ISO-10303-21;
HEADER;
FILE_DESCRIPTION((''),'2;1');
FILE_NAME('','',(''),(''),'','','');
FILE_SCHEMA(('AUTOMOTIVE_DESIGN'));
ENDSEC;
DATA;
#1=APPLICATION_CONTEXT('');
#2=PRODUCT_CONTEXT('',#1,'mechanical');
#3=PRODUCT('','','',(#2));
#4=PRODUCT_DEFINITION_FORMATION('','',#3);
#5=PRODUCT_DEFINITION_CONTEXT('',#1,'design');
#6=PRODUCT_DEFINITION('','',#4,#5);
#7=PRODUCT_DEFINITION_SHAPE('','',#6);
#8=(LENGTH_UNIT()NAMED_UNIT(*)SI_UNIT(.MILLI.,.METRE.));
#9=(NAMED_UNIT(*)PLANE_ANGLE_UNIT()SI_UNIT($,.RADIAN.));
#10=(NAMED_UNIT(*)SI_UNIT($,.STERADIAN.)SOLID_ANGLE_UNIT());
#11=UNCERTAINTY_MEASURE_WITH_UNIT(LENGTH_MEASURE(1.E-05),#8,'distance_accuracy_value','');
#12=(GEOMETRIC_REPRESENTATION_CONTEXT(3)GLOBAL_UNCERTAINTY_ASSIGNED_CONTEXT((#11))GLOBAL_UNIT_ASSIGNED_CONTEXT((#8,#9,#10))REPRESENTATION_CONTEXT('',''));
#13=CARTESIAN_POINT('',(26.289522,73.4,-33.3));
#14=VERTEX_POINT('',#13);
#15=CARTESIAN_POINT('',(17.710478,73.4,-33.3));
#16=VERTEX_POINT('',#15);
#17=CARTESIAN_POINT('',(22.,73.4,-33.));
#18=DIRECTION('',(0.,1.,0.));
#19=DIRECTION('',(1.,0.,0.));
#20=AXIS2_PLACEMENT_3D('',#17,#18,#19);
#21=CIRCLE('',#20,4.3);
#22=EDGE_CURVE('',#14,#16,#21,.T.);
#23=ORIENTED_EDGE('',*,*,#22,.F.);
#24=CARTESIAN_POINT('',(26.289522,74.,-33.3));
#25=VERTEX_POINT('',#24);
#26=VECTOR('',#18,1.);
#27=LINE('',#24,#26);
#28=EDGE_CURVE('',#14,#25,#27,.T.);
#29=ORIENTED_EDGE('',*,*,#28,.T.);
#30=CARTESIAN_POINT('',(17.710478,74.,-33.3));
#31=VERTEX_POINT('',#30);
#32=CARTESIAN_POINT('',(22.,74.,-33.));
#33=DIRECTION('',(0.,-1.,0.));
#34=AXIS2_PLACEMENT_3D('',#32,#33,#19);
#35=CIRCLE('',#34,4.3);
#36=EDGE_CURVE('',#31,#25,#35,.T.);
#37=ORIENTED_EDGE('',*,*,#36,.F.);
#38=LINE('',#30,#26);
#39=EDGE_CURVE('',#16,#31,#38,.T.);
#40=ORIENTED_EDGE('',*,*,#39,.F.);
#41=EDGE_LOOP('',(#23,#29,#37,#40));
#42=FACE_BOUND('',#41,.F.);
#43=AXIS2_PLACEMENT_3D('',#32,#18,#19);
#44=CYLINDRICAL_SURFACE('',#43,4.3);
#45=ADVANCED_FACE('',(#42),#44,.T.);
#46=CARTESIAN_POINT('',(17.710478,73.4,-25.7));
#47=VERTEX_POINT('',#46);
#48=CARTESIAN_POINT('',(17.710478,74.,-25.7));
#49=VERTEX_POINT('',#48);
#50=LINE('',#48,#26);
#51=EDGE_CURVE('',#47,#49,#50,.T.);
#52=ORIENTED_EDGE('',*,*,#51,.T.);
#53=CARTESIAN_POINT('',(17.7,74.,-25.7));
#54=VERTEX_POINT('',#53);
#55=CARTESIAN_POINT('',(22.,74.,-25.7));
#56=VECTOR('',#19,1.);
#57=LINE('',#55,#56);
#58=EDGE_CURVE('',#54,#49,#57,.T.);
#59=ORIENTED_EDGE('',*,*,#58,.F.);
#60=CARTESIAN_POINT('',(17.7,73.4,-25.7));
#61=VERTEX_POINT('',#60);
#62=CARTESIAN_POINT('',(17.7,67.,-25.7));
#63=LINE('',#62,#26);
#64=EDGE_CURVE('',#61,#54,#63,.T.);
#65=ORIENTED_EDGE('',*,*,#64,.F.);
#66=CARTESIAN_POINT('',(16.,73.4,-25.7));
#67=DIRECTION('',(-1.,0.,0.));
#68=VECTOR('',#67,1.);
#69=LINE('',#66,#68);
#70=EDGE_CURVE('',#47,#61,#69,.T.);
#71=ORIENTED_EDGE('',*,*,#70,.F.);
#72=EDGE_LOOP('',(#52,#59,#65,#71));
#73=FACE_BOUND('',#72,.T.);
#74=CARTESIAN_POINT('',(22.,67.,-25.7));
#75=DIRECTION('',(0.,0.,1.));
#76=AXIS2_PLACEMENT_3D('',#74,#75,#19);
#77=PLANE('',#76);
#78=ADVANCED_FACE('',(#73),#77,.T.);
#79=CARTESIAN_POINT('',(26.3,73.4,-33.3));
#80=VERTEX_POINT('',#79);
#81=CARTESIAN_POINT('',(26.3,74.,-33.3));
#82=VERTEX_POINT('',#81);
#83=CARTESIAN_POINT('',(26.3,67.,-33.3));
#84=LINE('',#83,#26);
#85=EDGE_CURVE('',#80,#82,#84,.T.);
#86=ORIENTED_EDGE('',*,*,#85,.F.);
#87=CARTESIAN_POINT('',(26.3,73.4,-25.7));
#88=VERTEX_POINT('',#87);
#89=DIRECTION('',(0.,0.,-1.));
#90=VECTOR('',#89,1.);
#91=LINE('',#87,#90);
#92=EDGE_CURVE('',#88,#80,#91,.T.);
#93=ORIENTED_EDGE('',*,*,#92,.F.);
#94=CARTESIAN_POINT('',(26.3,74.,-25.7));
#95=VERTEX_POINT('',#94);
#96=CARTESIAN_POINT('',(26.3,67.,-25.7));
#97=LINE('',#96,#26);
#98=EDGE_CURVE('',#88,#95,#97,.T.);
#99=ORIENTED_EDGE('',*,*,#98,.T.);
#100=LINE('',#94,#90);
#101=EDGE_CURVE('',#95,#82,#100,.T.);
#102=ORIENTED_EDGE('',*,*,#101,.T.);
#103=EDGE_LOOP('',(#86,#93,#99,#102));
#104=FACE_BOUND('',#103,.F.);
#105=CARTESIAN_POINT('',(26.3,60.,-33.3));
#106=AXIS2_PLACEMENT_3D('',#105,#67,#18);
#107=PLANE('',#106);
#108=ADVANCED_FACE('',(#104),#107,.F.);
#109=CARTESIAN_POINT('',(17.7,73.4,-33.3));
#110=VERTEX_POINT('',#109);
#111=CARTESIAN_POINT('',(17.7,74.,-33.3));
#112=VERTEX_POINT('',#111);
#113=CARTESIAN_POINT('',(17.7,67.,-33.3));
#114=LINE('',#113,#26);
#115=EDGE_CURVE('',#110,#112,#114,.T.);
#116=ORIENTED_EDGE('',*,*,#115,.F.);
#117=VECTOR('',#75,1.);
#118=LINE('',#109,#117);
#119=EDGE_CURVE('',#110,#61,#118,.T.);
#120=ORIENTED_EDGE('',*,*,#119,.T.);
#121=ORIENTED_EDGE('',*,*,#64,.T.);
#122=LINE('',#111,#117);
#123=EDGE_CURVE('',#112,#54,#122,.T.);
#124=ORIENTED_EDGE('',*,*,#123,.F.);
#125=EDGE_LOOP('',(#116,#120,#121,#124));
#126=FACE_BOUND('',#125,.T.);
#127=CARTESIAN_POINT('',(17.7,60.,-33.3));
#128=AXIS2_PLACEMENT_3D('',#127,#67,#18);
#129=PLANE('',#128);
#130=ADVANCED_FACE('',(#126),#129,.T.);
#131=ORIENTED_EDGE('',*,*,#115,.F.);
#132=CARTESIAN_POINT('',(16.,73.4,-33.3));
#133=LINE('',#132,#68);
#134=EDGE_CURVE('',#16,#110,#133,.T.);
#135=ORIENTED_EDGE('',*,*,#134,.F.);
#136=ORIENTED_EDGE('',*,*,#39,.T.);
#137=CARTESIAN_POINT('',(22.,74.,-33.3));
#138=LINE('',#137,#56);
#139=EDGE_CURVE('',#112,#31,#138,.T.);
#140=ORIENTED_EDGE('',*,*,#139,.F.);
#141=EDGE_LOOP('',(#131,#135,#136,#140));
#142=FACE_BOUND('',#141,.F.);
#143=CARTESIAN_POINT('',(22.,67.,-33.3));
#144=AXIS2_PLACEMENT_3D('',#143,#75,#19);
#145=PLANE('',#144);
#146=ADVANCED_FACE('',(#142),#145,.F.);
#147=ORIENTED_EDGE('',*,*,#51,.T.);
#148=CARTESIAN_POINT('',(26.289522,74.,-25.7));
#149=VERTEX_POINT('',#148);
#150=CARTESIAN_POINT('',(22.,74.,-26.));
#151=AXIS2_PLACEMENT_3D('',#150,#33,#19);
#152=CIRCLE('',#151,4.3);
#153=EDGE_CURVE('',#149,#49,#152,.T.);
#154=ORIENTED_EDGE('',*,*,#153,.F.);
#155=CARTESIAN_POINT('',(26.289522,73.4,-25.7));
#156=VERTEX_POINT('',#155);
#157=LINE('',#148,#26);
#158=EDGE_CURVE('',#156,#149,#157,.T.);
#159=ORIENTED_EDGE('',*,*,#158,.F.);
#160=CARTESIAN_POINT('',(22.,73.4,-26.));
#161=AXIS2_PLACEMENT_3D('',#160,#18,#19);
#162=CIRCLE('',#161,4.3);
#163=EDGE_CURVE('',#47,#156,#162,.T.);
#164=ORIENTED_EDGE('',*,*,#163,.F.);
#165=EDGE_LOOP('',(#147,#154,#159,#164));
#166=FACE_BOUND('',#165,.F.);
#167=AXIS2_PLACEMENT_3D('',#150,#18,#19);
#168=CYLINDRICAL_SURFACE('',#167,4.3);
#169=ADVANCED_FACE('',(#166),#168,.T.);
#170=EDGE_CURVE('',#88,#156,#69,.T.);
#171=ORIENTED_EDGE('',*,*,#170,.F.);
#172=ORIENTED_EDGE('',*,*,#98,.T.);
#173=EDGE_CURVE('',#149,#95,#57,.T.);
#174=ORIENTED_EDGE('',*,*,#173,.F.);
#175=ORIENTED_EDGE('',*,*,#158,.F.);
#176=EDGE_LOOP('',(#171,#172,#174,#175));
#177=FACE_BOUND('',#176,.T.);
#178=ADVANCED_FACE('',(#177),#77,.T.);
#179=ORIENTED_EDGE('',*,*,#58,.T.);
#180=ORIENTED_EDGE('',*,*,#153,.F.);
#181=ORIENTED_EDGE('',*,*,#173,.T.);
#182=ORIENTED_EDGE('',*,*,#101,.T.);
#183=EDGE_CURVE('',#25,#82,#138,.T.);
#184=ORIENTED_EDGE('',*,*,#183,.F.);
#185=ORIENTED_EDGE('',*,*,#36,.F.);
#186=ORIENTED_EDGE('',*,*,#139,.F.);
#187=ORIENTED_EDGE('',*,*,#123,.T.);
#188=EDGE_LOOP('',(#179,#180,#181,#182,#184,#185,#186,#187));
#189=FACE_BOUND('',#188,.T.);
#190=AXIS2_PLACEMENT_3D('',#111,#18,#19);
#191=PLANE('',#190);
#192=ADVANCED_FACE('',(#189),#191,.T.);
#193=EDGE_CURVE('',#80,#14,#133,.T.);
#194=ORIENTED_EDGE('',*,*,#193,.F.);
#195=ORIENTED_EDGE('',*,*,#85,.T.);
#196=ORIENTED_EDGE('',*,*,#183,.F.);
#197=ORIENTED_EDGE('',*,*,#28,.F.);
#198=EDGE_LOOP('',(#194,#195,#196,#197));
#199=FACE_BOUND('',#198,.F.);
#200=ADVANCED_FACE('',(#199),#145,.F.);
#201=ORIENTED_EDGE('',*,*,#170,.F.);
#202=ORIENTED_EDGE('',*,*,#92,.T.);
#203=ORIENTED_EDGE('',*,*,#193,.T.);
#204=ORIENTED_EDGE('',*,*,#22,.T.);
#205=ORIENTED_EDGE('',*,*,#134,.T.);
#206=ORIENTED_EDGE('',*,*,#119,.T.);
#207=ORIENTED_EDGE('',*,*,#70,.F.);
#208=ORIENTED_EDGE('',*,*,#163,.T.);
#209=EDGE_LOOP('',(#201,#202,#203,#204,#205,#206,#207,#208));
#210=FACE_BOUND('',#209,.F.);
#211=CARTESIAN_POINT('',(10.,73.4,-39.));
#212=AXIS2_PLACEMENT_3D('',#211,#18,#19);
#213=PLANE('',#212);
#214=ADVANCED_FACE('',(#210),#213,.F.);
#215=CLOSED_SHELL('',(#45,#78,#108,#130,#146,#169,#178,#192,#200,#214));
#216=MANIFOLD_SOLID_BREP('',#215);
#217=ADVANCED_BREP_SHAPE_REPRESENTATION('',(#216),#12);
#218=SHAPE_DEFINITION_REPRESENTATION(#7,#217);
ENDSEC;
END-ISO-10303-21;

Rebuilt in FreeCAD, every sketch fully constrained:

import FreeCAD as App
import Part
import Sketcher


def add_polygon(sketch, points):
    """Adds a closed chain of lines whose ends are joined by coincident constraints."""
    first, n = sketch.GeometryCount, len(points)
    for a, b in zip(points, points[1:] + points[:1]):
        sketch.addGeometry(Part.LineSegment(App.Vector(*a, 0), App.Vector(*b, 0)), False)
    for i in range(n):
        sketch.addConstraint(Sketcher.Constraint("Coincident", first + i, 2, first + (i + 1) % n, 1))

doc = App.newDocument("Part")
body = doc.addObject("PartDesign::Body", "Body")

sketch1 = doc.addObject("Sketcher::SketchObject", "Sketch")
body.addObject(sketch1)
sketch1.AttachmentSupport = (doc.XY_Plane, [""])
sketch1.MapMode = "FlatFace"
sketch1.AttachmentOffset = App.Placement(App.Vector(0, 0, -39), App.Rotation())
add_polygon(sketch1, [(10, 73.4), (10, 53.4), (30, 53.4), (30, 73.4)])
sketch1.addConstraint(Sketcher.Constraint("Vertical", 0))
sketch1.addConstraint(Sketcher.Constraint("Horizontal", 1))
sketch1.addConstraint(Sketcher.Constraint("Vertical", 2))
sketch1.addConstraint(Sketcher.Constraint("Horizontal", 3))
sketch1.addConstraint(Sketcher.Constraint("Equal", 3, 0))
sketch1.addConstraint(Sketcher.Constraint("DistanceX", 1, 1, 1, 2, 20.0))
sketch1.addConstraint(Sketcher.Constraint("DistanceX", -1, 1, 0, 2, 10.0))
sketch1.addConstraint(Sketcher.Constraint("DistanceY", -1, 1, 0, 2, 53.4))
pad1 = doc.addObject("PartDesign::Pad", "Pad")
body.addObject(pad1)
pad1.Profile = sketch1
pad1.Length = 20
body2 = doc.addObject("PartDesign::Body", "Body001")

sketch2 = doc.addObject("Sketcher::SketchObject", "Sketch001")
body2.addObject(sketch2)
sketch2.AttachmentSupport = (doc.getObject("XY_Plane001"), [""])
sketch2.MapMode = "FlatFace"
sketch2.AttachmentOffset = App.Placement(App.Vector(0, 0, -33.3), App.Rotation())
add_polygon(sketch2, [(17.7, 73), (17.7, 59), (26.3, 59), (26.3, 73)])
sketch2.addConstraint(Sketcher.Constraint("Vertical", 0))
sketch2.addConstraint(Sketcher.Constraint("Horizontal", 1))
sketch2.addConstraint(Sketcher.Constraint("Vertical", 2))
sketch2.addConstraint(Sketcher.Constraint("Horizontal", 3))
sketch2.addConstraint(Sketcher.Constraint("DistanceY", 0, 2, 0, 1, 14.0))
sketch2.addConstraint(Sketcher.Constraint("DistanceX", 1, 1, 1, 2, 8.6))
sketch2.addConstraint(Sketcher.Constraint("DistanceY", -1, 1, 0, 2, 59.0))
sketch2.addConstraint(Sketcher.Constraint("DistanceX", -1, 1, 0, 2, 17.7))
pad2 = doc.addObject("PartDesign::Pad", "Pad001")
body2.addObject(pad2)
pad2.Profile = sketch2
pad2.Length = 7.6
body3 = doc.addObject("PartDesign::Body", "Body002")

sketch3 = doc.addObject("Sketcher::SketchObject", "Sketch002")
body3.addObject(sketch3)
sketch3.AttachmentSupport = (doc.getObject("XZ_Plane002"), [""])
sketch3.MapMode = "FlatFace"
sketch3.AttachmentOffset = App.Placement(App.Vector(0, 0, -73), App.Rotation())
sketch3.addGeometry(Part.Circle(App.Vector(22, -26, 0), App.Vector(0, 0, 1), 4.3), False)
sketch3.addConstraint(Sketcher.Constraint("Diameter", 0, 8.6))
sketch3.addConstraint(Sketcher.Constraint("DistanceX", -1, 1, 0, 3, 22.0))
sketch3.addConstraint(Sketcher.Constraint("DistanceY", 0, 3, -1, 1, 26.0))
pad3 = doc.addObject("PartDesign::Pad", "Pad002")
body3.addObject(pad3)
pad3.Profile = sketch3
pad3.Length = 10
body4 = doc.addObject("PartDesign::Body", "Body003")

sketch4 = doc.addObject("Sketcher::SketchObject", "Sketch003")
body4.addObject(sketch4)
sketch4.AttachmentSupport = (doc.getObject("XZ_Plane003"), [""])
sketch4.MapMode = "FlatFace"
sketch4.AttachmentOffset = App.Placement(App.Vector(0, 0, -73), App.Rotation())
sketch4.addGeometry(Part.Circle(App.Vector(22, -33, 0), App.Vector(0, 0, 1), 4.3), False)
sketch4.addConstraint(Sketcher.Constraint("Diameter", 0, 8.6))
sketch4.addConstraint(Sketcher.Constraint("DistanceX", -1, 1, 0, 3, 22.0))
sketch4.addConstraint(Sketcher.Constraint("DistanceY", 0, 3, -1, 1, 33.0))
pad4 = doc.addObject("PartDesign::Pad", "Pad003")
body4.addObject(pad4)
pad4.Profile = sketch4
pad4.Length = 10
doc.recompute()

boolean = doc.addObject("PartDesign::Boolean", "Boolean")
body4.addObject(boolean)
boolean.Type = "Fuse"
boolean.addObjects([body2])
doc.recompute()

boolean2 = doc.addObject("PartDesign::Boolean", "Boolean001")
body4.addObject(boolean2)
boolean2.Type = "Fuse"
boolean2.addObjects([body3])
body5 = doc.addObject("PartDesign::Body", "Body004")
doc.recompute()

body4.Placement = App.Placement(App.Vector(0, 1, 0), App.Rotation(App.Vector(0, 0, 1), 0))
boolean3 = doc.addObject("PartDesign::Boolean", "Boolean002")
body5.addObject(boolean3)
boolean3.Type = "Fuse"
boolean3.addObjects([body4])
doc.recompute()

boolean4 = doc.addObject("PartDesign::Boolean", "Boolean003")
body5.addObject(boolean4)
boolean4.Type = "Cut"
boolean4.addObjects([body])

doc.recompute()
